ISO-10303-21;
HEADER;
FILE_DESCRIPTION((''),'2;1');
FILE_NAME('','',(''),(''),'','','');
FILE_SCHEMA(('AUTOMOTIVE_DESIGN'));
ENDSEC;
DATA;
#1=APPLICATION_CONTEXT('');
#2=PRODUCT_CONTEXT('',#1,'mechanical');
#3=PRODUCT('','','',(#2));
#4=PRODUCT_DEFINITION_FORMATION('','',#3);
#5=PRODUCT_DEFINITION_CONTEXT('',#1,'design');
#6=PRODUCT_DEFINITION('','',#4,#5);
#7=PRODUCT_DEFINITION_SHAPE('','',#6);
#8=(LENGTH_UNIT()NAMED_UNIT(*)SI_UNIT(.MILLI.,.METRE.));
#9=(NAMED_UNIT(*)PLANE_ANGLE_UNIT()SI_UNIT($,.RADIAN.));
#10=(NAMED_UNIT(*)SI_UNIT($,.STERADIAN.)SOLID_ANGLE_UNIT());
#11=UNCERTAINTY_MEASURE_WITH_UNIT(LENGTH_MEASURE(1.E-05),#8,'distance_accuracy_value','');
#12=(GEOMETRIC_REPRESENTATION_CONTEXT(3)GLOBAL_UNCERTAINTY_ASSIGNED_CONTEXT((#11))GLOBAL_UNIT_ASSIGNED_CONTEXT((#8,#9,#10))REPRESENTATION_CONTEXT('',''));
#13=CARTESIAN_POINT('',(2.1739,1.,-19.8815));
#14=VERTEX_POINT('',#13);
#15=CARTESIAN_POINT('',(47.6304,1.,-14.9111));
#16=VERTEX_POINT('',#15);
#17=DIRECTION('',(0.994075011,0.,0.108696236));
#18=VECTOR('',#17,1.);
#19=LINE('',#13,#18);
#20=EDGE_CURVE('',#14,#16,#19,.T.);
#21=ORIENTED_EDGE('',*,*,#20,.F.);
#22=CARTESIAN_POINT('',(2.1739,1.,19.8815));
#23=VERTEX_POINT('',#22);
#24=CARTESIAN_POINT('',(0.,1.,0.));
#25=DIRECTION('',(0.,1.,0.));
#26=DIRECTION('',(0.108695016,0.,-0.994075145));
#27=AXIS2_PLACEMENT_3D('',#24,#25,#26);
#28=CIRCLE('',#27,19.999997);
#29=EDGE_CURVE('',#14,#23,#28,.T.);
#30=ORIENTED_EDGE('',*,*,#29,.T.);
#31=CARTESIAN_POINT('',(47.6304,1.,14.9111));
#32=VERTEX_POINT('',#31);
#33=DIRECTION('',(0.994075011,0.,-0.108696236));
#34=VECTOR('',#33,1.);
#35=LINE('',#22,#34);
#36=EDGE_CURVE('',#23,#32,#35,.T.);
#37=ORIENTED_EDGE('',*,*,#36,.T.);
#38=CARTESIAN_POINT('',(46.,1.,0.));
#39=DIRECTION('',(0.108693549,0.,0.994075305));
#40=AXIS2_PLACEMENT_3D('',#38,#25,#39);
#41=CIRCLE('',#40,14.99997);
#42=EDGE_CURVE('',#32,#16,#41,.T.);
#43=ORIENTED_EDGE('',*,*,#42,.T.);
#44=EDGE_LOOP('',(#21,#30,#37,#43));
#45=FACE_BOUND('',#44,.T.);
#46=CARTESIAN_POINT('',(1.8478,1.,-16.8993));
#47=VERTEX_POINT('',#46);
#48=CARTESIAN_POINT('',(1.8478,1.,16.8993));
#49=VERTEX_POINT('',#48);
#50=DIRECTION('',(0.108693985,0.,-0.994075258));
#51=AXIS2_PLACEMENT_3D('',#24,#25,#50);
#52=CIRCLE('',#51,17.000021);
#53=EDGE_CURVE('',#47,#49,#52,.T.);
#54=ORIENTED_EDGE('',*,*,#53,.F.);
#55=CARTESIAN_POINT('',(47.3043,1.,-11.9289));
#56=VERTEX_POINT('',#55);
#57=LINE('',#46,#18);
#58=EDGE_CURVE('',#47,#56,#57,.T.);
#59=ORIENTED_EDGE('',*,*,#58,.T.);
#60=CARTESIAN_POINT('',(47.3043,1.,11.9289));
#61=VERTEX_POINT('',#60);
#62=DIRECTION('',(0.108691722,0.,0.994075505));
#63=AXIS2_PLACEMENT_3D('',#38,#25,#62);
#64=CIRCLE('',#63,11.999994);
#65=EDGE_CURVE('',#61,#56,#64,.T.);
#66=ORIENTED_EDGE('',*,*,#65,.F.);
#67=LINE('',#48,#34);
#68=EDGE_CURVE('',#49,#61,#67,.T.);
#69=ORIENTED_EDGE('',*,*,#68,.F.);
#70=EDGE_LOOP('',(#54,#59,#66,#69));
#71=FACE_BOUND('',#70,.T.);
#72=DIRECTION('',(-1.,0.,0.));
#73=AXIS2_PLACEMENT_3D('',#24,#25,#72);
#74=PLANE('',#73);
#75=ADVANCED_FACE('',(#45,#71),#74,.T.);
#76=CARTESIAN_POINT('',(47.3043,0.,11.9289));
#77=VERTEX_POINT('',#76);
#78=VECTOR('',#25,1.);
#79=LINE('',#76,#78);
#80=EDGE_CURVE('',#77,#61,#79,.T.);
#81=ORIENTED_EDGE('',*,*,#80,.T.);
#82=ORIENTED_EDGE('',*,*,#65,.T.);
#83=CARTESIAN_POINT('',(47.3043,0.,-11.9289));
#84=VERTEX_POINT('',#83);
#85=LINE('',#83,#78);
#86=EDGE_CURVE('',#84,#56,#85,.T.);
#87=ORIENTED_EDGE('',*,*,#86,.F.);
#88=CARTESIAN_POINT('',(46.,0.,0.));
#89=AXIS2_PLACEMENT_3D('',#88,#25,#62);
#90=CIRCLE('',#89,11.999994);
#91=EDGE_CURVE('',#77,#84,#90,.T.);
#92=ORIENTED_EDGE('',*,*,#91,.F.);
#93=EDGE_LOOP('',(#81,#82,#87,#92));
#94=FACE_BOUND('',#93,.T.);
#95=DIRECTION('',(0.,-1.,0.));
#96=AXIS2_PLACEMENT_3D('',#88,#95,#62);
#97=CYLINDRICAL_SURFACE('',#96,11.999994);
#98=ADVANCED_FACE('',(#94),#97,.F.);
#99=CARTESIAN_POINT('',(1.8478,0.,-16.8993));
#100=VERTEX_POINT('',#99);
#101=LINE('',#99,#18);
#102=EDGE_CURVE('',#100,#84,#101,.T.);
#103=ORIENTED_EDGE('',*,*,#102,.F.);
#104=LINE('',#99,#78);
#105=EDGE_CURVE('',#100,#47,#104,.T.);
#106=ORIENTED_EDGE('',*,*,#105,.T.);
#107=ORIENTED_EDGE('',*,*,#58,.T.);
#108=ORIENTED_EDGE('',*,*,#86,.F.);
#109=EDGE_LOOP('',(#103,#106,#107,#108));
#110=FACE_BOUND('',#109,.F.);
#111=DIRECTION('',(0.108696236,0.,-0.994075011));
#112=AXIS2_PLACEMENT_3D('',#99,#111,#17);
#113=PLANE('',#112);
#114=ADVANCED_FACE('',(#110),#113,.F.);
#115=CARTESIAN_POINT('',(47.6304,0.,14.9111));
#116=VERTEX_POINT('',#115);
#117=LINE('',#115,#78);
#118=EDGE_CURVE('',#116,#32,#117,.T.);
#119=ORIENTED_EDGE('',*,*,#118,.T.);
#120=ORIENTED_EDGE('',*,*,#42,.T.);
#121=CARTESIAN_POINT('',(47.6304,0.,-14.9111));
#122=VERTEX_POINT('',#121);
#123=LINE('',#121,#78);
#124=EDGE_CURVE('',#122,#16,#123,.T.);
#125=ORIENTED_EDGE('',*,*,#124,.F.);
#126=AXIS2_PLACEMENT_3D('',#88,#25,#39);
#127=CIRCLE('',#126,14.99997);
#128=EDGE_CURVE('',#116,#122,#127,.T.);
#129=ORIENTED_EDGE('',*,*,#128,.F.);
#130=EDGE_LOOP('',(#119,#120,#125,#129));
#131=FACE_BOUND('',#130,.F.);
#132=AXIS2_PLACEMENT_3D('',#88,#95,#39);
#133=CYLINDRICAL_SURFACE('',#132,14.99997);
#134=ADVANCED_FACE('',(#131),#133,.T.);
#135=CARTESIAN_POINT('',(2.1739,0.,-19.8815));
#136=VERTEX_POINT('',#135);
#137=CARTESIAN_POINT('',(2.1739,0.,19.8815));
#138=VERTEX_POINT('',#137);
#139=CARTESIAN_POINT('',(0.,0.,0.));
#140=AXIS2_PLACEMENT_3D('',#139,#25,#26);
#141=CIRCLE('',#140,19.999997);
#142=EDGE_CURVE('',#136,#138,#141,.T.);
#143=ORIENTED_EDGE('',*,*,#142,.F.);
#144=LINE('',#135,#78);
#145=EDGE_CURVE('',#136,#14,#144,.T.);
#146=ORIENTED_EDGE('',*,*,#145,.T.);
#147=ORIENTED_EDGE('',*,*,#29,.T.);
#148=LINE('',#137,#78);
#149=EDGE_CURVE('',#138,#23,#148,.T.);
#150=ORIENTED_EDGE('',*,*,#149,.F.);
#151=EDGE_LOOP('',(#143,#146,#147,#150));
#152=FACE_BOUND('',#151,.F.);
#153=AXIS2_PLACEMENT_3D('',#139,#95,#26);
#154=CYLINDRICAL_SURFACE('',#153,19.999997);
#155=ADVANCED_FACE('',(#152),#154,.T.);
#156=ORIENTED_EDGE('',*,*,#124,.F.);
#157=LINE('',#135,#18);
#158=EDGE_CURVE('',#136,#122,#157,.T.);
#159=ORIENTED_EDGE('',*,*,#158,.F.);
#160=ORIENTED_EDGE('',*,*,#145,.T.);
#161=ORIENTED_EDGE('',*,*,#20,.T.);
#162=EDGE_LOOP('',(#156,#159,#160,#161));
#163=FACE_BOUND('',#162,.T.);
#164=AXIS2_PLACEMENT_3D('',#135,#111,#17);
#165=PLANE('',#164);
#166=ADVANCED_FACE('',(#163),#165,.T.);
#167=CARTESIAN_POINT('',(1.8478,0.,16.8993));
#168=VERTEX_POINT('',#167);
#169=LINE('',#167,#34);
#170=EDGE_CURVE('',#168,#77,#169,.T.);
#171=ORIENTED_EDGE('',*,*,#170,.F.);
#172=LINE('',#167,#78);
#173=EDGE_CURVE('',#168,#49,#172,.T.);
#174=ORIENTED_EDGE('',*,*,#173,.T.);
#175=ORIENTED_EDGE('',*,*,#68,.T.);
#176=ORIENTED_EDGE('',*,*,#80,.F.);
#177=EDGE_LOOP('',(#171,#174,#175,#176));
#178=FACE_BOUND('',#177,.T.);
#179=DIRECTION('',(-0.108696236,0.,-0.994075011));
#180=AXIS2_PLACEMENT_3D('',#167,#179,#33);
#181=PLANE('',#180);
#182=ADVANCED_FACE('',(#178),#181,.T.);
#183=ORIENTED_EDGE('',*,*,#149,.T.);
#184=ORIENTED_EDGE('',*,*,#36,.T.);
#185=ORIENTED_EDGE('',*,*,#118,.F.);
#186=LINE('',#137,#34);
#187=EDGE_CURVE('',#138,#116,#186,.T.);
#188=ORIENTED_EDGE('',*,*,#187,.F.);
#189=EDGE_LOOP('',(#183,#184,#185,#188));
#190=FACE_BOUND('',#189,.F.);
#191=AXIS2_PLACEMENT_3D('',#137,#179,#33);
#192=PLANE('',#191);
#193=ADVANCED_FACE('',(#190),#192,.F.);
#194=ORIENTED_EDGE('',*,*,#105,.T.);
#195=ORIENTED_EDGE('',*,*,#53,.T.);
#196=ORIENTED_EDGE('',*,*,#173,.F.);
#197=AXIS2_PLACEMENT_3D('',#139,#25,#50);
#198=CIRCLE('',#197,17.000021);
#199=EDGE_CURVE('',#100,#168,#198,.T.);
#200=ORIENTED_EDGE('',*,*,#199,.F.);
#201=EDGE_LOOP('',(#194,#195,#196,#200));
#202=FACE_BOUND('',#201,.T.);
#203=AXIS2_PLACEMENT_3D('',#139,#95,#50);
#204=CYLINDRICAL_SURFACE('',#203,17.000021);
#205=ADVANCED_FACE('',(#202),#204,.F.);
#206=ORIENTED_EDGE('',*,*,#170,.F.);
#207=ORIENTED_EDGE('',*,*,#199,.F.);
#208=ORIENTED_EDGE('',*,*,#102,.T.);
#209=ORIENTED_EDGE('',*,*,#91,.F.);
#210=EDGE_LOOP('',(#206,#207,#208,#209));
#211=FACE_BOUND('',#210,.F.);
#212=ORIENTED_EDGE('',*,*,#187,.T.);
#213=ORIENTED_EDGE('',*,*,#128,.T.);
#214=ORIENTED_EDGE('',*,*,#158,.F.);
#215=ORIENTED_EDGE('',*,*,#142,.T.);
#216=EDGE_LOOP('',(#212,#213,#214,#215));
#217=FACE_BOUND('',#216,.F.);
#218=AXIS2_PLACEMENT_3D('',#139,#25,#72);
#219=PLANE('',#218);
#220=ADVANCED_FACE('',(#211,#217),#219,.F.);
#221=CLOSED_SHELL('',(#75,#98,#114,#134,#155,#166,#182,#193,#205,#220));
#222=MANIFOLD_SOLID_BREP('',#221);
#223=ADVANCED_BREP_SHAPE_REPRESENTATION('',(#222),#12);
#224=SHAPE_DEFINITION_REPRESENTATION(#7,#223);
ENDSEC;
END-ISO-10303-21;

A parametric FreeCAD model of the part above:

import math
import FreeCAD as App
import Part
import Sketcher
from FreeCAD import Vector

doc = App.newDocument("Part")
body = doc.addObject("PartDesign::Body", "Body")

# Sketch on XZ plane
sketch1 = doc.addObject("Sketcher::SketchObject", "Sketch")
body.addObject(sketch1)
sketch1.AttachmentSupport = (doc.XZ_Plane, [""])
sketch1.MapMode = "FlatFace"
sketch1.addGeometry([
    Part.LineSegment(Vector(47.6304, -14.9111, 0), Vector(2.1739, -19.8815, 0)),  # 0
    Part.ArcOfCircle(Part.Circle(Vector(0, 0, 0), Vector(0, 0, 1), 19.999997), math.radians(83.759906), math.radians(276.240094)),  # 1
    Part.LineSegment(Vector(2.1739, 19.8815, 0), Vector(47.6304, 14.9111, 0)),  # 2
    Part.ArcOfCircle(Part.Circle(Vector(46, 0, 0), Vector(0, 0, 1), 14.99997), math.radians(-83.75999), math.radians(83.75999)),  # 3
    Part.ArcOfCircle(Part.Circle(Vector(0, 0, 0), Vector(0, 0, 1), 17.000021), math.radians(83.759965), math.radians(276.240035)),  # 4
    Part.LineSegment(Vector(1.8478, -16.8993, 0), Vector(47.3043, -11.9289, 0)),  # 5
    Part.ArcOfCircle(Part.Circle(Vector(46, 0, 0), Vector(0, 0, 1), 11.999994), math.radians(-83.760095), math.radians(83.760095)),  # 6
    Part.LineSegment(Vector(47.3043, 11.9289, 0), Vector(1.8478, 16.8993, 0)),  # 7
], False)
sketch1.addConstraint([
    Sketcher.Constraint("Tangent", 0, 2, 1, 2),
    Sketcher.Constraint("Tangent", 1, 1, 2, 1),
    Sketcher.Constraint("Tangent", 2, 2, 3, 2),
    Sketcher.Constraint("Tangent", 3, 1, 0, 1),
    Sketcher.Constraint("Tangent", 4, 2, 5, 1),
    Sketcher.Constraint("Tangent", 5, 2, 6, 1),
    Sketcher.Constraint("Tangent", 6, 2, 7, 1),
    Sketcher.Constraint("Tangent", 7, 2, 4, 1),
    Sketcher.Constraint("Coincident", 1, 3, -1, 1),
    Sketcher.Constraint("Coincident", 4, 3, -1, 1),
    Sketcher.Constraint("Coincident", 6, 3, 3, 3),
    Sketcher.Constraint("PointOnObject", 3, 3, -1),
    Sketcher.Constraint("Parallel", 0, 5),
    Sketcher.Constraint("Radius", 1, 20.0),
    Sketcher.Constraint("Radius", 3, 15.0),
    Sketcher.Constraint("DistanceX", -1, 1, 3, 3, 46.0),
    Sketcher.Constraint("Radius", 4, 17.0),
])
pad1 = doc.addObject("PartDesign::Pad", "Pad")
body.addObject(pad1)
pad1.Profile = sketch1
pad1.Length = 1
pad1.Reversed = True

doc.recompute()
